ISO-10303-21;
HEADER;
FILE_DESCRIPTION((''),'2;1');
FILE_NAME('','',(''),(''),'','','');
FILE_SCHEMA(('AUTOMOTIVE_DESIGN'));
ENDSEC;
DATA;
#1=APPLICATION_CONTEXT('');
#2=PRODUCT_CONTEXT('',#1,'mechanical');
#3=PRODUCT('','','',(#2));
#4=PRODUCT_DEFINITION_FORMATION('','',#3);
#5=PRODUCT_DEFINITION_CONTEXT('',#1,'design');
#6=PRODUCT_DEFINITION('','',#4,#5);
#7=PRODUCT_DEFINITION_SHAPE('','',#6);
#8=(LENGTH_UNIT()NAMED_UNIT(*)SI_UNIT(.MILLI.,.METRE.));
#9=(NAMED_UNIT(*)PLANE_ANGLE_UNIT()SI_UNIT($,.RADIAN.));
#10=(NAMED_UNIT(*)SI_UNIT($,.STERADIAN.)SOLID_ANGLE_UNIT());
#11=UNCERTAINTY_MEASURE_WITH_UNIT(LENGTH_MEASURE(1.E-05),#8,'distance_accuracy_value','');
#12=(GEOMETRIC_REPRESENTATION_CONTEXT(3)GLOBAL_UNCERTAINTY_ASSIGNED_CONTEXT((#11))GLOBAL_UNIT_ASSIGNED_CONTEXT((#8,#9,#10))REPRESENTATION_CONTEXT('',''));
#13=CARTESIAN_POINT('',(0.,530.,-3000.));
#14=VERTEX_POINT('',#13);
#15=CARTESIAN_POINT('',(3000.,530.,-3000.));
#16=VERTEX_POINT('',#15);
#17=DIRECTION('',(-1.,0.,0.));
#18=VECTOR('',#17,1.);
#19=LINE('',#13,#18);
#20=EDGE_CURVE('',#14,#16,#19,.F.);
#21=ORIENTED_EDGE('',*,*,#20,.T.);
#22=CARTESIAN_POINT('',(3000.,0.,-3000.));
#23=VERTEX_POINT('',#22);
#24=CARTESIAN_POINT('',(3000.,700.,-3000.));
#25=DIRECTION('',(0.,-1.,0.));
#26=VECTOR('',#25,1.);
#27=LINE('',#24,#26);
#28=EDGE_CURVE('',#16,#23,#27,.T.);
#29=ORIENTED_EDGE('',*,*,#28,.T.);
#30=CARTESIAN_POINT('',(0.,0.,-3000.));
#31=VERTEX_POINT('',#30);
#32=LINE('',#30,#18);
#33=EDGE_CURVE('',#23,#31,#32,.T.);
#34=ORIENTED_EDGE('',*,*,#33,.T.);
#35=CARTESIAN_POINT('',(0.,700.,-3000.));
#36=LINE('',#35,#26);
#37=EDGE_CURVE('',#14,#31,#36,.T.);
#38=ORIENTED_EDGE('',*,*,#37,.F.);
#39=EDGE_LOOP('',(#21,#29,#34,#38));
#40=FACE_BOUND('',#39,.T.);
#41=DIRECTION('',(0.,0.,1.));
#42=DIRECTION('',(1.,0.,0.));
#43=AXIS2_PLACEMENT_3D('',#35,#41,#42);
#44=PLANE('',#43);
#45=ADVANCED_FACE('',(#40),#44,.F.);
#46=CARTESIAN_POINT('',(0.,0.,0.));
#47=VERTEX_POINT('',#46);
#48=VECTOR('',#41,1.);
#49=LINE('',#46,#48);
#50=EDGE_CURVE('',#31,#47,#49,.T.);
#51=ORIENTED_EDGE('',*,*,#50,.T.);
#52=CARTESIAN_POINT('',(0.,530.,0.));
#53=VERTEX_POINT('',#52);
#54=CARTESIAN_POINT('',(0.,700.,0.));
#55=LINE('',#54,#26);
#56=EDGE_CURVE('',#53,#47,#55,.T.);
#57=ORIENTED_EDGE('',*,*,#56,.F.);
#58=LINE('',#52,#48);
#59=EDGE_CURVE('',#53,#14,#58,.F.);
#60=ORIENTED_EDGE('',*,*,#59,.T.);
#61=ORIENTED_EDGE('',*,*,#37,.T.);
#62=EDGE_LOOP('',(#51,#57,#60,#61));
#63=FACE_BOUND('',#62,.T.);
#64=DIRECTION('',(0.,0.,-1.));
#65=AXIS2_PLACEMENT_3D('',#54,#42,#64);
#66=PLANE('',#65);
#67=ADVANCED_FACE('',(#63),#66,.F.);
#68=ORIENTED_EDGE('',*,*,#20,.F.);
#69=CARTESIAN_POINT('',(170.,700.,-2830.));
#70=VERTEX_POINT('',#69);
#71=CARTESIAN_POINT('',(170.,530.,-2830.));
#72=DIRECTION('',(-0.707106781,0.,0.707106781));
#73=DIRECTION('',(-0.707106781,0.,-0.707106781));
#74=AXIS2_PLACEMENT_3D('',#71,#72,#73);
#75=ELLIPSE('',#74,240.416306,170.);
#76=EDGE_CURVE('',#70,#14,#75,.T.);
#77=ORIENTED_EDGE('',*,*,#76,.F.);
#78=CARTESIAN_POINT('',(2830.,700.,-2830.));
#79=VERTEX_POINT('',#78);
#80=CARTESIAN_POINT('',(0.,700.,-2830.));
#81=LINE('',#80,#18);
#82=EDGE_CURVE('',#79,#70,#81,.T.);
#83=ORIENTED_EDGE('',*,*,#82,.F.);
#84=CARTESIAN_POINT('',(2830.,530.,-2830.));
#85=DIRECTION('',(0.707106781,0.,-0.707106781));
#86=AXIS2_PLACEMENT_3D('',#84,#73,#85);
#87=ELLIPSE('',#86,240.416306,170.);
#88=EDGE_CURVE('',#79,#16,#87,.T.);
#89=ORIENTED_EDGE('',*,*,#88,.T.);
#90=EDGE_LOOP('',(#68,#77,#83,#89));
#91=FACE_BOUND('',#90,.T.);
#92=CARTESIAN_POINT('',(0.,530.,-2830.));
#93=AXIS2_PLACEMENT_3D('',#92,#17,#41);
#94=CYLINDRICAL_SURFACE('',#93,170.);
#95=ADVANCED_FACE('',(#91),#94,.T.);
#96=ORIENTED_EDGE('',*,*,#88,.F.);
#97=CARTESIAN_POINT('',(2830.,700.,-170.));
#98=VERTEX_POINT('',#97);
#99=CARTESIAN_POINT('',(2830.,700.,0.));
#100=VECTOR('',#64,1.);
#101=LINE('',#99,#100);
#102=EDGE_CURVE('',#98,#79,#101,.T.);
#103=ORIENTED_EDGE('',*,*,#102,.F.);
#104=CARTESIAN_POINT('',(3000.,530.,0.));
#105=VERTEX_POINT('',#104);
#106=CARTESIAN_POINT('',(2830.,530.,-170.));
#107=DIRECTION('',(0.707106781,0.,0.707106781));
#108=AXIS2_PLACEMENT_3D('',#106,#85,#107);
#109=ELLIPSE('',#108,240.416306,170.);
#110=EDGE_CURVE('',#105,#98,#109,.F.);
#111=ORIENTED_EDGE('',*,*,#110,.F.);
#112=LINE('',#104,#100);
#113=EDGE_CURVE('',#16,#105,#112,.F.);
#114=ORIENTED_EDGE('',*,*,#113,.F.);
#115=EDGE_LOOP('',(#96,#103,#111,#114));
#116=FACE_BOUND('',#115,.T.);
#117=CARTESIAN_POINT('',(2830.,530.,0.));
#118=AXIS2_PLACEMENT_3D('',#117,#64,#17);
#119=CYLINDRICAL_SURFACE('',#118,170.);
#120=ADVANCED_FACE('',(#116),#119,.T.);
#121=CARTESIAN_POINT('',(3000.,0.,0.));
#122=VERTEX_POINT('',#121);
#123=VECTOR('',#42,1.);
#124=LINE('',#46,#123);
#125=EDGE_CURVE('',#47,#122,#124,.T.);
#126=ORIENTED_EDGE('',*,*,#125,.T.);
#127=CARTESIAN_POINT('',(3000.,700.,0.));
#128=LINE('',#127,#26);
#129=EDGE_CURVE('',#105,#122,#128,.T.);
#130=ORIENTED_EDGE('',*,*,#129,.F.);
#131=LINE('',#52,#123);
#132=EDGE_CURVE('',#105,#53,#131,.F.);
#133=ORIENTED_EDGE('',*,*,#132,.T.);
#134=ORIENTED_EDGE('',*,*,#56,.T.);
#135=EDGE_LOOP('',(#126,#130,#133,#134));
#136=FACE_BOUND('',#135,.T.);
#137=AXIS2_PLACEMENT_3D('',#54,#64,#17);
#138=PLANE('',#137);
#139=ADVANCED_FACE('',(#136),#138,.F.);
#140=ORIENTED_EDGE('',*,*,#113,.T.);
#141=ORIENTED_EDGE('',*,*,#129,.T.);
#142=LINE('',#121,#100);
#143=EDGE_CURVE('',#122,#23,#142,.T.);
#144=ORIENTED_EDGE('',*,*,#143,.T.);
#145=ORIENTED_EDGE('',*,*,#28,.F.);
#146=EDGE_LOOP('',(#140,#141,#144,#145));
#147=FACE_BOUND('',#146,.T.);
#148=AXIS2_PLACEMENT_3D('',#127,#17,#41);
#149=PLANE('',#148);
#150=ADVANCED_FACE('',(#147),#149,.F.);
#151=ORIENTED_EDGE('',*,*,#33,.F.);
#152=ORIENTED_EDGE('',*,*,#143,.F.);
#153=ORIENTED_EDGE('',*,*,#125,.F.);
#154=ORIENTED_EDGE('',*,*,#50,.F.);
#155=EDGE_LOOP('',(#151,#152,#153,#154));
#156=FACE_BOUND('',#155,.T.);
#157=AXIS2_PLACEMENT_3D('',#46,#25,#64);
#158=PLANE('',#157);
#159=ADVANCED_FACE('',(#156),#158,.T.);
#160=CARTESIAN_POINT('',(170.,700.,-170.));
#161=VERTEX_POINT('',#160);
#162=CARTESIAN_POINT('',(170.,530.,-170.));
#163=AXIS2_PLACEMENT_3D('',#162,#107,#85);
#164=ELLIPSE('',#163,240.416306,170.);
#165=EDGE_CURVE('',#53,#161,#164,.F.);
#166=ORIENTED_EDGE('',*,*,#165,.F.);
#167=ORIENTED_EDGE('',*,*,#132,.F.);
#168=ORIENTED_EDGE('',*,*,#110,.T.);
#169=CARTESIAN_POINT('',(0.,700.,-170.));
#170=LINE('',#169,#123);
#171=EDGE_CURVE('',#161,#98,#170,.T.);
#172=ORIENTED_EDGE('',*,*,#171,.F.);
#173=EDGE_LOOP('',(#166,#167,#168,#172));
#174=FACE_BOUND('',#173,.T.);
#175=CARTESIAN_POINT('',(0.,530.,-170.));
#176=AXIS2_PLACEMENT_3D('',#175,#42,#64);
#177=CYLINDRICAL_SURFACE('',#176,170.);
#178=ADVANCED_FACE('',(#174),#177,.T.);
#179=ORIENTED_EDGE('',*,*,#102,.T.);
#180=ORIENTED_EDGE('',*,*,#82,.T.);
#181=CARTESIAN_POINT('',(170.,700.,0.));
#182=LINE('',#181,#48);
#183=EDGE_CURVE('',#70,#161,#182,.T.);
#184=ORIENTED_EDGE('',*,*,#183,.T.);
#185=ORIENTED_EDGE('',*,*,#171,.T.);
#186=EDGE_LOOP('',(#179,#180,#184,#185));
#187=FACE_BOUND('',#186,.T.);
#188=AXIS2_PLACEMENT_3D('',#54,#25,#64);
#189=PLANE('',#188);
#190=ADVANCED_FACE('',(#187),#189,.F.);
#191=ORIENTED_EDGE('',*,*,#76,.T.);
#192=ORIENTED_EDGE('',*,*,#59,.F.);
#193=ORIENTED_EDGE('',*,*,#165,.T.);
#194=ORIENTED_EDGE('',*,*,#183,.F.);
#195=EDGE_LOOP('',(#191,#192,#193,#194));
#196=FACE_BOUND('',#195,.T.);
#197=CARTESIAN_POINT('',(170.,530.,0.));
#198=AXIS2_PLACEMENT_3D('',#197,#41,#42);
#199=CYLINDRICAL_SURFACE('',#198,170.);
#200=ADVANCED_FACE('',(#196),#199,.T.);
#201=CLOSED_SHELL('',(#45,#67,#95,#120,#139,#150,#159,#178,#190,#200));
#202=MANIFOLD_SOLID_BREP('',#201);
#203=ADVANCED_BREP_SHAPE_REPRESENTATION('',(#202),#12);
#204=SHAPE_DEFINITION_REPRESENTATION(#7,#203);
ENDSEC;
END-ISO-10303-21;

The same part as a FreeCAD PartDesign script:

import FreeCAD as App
import Part
import Sketcher
from FreeCAD import Vector


def edges_at(feature, points):
    """Names of the edges that pass closest to the given points."""
    edges = feature.Shape.Edges
    near = lambda p: min(range(len(edges)), key=lambda i: edges[i].distToShape(Part.Vertex(*p))[0])
    return sorted({f"Edge{near(p) + 1}" for p in points})


def add_polygon(sketch, points):
    """Adds a closed chain of lines whose ends are joined by coincident constraints."""
    first, n = sketch.GeometryCount, len(points)
    for a, b in zip(points, points[1:] + points[:1]):
        sketch.addGeometry(Part.LineSegment(App.Vector(*a, 0), App.Vector(*b, 0)), False)
    for i in range(n):
        sketch.addConstraint(Sketcher.Constraint("Coincident", first + i, 2, first + (i + 1) % n, 1))

doc = App.newDocument("Part")
body = doc.addObject("PartDesign::Body", "Body")

# Sketch on XZ plane
sketch1 = body.newObject("Sketcher::SketchObject", "Sketch")
sketch1.AttachmentSupport = (doc.getObject("XZ_Plane"), [""])
sketch1.MapMode = "FlatFace"
add_polygon(sketch1, [(0, -3000), (0, 0), (3000, 0), (3000, -3000)])  # lines 0-3
sketch1.addConstraint([
    Sketcher.Constraint("Vertical", 0),
    Sketcher.Constraint("Horizontal", 1),
    Sketcher.Constraint("Vertical", 2),
    Sketcher.Constraint("Horizontal", 3),
    Sketcher.Constraint("Coincident", 0, 2, -1, 1),
    Sketcher.Constraint("Equal", 3, 0),
    Sketcher.Constraint("DistanceX", 1, 1, 1, 2, 3000.0),
])
pad1 = body.newObject("PartDesign::Pad", "Pad")
pad1.Profile = sketch1
pad1.Length = 700
pad1.Reversed = True
doc.recompute()

fillet = body.newObject("PartDesign::Fillet", "Fillet")
fillet.Base = (pad1, edges_at(pad1, [
    (3000, 700, -1500),
    (1500, 700, -3000),
    (0, 700, -1500),
    (1500, 700, 0),
]))
fillet.Radius = 170

doc.recompute()
